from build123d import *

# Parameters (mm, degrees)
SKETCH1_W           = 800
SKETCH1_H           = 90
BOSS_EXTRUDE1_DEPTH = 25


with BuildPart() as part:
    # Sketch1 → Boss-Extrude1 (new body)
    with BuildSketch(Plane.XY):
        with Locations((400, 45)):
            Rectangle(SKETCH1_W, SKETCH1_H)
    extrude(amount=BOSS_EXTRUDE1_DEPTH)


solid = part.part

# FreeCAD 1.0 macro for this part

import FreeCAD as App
import Part
import Sketcher
from FreeCAD import Vector
Q = App.Units.Quantity


def add_polygon(sketch, points):
    """Adds a closed chain of lines whose ends are joined by coincident constraints."""
    first, n = sketch.GeometryCount, len(points)
    for a, b in zip(points, points[1:] + points[:1]):
        sketch.addGeometry(Part.LineSegment(App.Vector(*a, 0), App.Vector(*b, 0)), False)
    for i in range(n):
        sketch.addConstraint(Sketcher.Constraint("Coincident", first + i, 2, first + (i + 1) % n, 1))

doc = App.newDocument("Part")
body = doc.addObject("PartDesign::Body", "Body")

sketch1 = doc.addObject("Sketcher::SketchObject", "Sketch")
body.addObject(sketch1)
sketch1.AttachmentSupport = (doc.XY_Plane, [""])
sketch1.MapMode = "FlatFace"
add_polygon(sketch1, [(0, 90), (0, 0), (800, 0), (800, 90)])
sketch1.addConstraint(Sketcher.Constraint("Vertical", 0))
sketch1.addConstraint(Sketcher.Constraint("Horizontal", 1))
sketch1.addConstraint(Sketcher.Constraint("Vertical", 2))
sketch1.addConstraint(Sketcher.Constraint("Horizontal", 3))
sketch1.addConstraint(Sketcher.Constraint("Coincident", 0, 2, -1, 1))
sketch1.addConstraint(Sketcher.Constraint("DistanceX", 1, 1, 1, 2, Q("800 mm")))
sketch1.addConstraint(Sketcher.Constraint("DistanceY", 0, 2, 0, 1, Q("90 mm")))
pad1 = doc.addObject("PartDesign::Pad", "Pad")
body.addObject(pad1)
pad1.Profile = sketch1
pad1.Length = 25

doc.recompute()
